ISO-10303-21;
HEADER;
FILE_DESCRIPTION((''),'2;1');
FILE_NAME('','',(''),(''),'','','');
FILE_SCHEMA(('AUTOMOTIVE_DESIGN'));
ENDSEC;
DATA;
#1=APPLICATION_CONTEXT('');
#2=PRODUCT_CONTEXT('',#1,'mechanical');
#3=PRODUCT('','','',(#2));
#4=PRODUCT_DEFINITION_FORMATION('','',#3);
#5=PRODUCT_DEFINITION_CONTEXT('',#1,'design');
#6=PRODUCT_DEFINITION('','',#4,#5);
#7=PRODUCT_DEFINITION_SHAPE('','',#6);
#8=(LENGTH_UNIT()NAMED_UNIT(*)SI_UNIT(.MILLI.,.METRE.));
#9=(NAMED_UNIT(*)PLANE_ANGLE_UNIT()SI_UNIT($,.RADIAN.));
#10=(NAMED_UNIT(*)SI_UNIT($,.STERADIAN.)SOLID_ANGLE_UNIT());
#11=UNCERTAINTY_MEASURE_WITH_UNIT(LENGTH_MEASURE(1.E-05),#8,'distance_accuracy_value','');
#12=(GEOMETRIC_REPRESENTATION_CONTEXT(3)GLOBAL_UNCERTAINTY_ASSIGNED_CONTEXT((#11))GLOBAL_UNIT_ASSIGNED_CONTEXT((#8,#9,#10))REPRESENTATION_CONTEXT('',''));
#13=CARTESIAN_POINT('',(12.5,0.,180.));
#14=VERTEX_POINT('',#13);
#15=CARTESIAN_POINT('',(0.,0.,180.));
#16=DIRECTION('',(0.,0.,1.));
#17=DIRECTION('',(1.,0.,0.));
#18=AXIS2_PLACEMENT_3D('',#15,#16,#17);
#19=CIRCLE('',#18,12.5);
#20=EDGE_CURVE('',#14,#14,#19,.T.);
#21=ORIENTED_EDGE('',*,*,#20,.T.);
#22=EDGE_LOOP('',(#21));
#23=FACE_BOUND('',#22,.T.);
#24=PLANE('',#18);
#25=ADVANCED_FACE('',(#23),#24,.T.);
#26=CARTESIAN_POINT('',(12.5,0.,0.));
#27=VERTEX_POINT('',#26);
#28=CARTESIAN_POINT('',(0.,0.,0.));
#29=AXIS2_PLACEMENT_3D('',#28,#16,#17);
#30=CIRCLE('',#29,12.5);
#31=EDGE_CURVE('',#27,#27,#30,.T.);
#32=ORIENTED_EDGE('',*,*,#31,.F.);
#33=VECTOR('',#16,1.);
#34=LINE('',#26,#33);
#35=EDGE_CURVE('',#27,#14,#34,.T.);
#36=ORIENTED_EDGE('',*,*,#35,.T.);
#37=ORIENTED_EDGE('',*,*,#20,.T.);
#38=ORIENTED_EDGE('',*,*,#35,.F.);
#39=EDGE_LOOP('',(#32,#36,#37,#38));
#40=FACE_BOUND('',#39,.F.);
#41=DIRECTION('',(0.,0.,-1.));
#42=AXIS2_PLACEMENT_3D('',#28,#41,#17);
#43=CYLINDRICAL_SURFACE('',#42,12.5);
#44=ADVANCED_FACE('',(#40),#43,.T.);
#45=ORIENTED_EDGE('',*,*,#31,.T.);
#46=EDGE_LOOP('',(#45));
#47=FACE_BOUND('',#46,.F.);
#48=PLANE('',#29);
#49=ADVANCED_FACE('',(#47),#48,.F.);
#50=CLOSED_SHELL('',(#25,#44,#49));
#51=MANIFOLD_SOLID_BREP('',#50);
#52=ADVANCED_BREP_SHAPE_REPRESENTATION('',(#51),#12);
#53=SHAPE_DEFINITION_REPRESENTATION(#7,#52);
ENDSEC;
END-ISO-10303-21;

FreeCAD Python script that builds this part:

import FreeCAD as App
import Part
import Sketcher
from FreeCAD import Vector
Q = App.Units.Quantity

doc = App.newDocument("Part")
params = doc.addObject("Spreadsheet::Sheet", "Params")
for row, (alias, value) in enumerate([
    ("sketch1_diameter", "25 mm"),
    ("pad1_length", "180 mm"),
], start=1):
    params.set(f"A{row}", alias)
    params.set(f"B{row}", "=" + value)
    params.setAlias(f"B{row}", alias)

body = doc.addObject("PartDesign::Body", "Body")

# Sketch on XY plane
sketch1 = body.newObject("Sketcher::SketchObject", "Sketch")
sketch1.AttachmentSupport = (doc.getObject("XY_Plane"), [""])
sketch1.MapMode = "FlatFace"
sketch1.addGeometry(Part.Circle(Vector(0, 0, 0), Vector(0, 0, 1), 12), False)
sketch1.addConstraint([
    Sketcher.Constraint("Coincident", 0, 3, -1, 1),
    Sketcher.Constraint("Diameter", 0, Q("25 mm")),
])
sketch1.setExpression("Constraints[1]", "Params.sketch1_diameter")
pad1 = body.newObject("PartDesign::Pad", "Pad")
pad1.Profile = sketch1
pad1.setExpression("Length", "Params.pad1_length")

doc.recompute()
